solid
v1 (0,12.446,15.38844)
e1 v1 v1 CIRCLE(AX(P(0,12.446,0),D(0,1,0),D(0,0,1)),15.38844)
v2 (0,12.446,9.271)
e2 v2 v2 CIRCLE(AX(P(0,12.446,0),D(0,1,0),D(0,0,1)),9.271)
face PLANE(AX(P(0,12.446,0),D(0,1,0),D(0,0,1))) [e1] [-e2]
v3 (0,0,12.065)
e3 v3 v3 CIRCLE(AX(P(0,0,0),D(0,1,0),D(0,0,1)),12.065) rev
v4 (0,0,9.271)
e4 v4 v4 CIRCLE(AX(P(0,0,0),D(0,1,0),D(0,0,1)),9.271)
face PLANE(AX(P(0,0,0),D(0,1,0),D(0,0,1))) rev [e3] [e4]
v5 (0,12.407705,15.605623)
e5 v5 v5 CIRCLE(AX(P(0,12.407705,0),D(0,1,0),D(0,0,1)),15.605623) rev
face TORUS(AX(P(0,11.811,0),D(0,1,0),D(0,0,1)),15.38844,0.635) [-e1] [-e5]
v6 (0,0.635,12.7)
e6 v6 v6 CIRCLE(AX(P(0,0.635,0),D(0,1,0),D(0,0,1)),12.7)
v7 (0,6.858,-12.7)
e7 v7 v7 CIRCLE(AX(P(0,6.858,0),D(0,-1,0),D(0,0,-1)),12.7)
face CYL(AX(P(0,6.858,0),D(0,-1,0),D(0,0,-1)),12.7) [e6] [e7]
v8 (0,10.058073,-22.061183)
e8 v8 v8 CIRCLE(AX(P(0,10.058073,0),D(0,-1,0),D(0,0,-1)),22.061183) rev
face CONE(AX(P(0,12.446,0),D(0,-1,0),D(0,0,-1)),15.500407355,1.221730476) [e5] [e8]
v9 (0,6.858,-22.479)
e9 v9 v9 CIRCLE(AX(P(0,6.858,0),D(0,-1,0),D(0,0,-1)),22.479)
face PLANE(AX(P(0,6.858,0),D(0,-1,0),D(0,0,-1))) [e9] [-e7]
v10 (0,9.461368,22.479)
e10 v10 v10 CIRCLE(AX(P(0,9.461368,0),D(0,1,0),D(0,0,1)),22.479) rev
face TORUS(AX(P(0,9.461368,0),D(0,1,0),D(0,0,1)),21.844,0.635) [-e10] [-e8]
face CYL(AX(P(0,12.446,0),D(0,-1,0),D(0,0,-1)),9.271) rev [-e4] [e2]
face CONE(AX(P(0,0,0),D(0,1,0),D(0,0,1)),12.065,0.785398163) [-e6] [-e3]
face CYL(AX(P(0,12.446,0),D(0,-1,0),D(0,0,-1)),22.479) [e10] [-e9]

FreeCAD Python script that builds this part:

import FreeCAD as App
import Part
import Sketcher
from FreeCAD import Vector
Q = App.Units.Quantity


def edges_at(feature, points):
    """Names of the edges that pass closest to the given points."""
    edges = feature.Shape.Edges
    near = lambda p: min(range(len(edges)), key=lambda i: edges[i].distToShape(Part.Vertex(*p))[0])
    return sorted({f"Edge{near(p) + 1}" for p in points})

doc = App.newDocument("Part")
body = doc.addObject("PartDesign::Body", "Body")

# Sketch on XZ plane
sketch1 = body.newObject("Sketcher::SketchObject", "Sketch")
sketch1.AttachmentSupport = (doc.getObject("XZ_Plane"), [""])
sketch1.MapMode = "FlatFace"
sketch1.addGeometry([
    Part.Circle(Vector(0, 0, 0), Vector(0, 0, 1), 22.479),
    Part.Circle(Vector(0, 0, 0), Vector(0, 0, 1), 9.271),
], False)
sketch1.addConstraint([
    Sketcher.Constraint("Coincident", 0, 3, -1, 1),
    Sketcher.Constraint("Coincident", 1, 3, -1, 1),
    Sketcher.Constraint("Diameter", 0, Q("1.77 in")),
    Sketcher.Constraint("Diameter", 1, Q("0.73 in")),
])
pad1 = body.newObject("PartDesign::Pad", "Pad")
pad1.Profile = sketch1
pad1.Length = Q("0.49 in")
pad1.Reversed = True

# Sketch on XZ plane
sketch2 = body.newObject("Sketcher::SketchObject", "Sketch001")
sketch2.AttachmentSupport = (doc.getObject("XZ_Plane"), [""])
sketch2.MapMode = "FlatFace"
sketch2.addGeometry([
    Part.Circle(Vector(0, 0, 0), Vector(0, 0, 1), 22.479),
    Part.Circle(Vector(0, 0, 0), Vector(0, 0, 1), 12.7),
], False)
sketch2.addConstraint([
    Sketcher.Constraint("Coincident", 0, 3, -1, 1),
    Sketcher.Constraint("Coincident", 1, 3, -1, 1),
    Sketcher.Constraint("Diameter", 1, Q("1 in")),
    Sketcher.Constraint("Diameter", 0, Q("1.77 in")),
])
pocket1 = body.newObject("PartDesign::Pocket", "Pocket")
pocket1.Profile = sketch2
pocket1.Length = Q("0.27 in")
doc.recompute()

chamfer = body.newObject("PartDesign::Chamfer", "Chamfer")
chamfer.Base = (pocket1, edges_at(pocket1, [(-22.479, 12.446, 0)]))
chamfer.ChamferType = "Two distances"
chamfer.Size = Q("0.1 in")
chamfer.Size2 = 6.978593
doc.recompute()

chamfer2 = body.newObject("PartDesign::Chamfer", "Chamfer001")
chamfer2.Base = (chamfer, edges_at(chamfer, [(-12.7, 0, 0)]))
chamfer2.Size = Q("0.025 in")
doc.recompute()

fillet = body.newObject("PartDesign::Fillet", "Fillet")
fillet.Base = (chamfer2, edges_at(chamfer2, [(-15.5, 12.446, 0), (-22.479, 9.906, 0)]))
fillet.Radius = Q("0.025 in")

doc.recompute()
